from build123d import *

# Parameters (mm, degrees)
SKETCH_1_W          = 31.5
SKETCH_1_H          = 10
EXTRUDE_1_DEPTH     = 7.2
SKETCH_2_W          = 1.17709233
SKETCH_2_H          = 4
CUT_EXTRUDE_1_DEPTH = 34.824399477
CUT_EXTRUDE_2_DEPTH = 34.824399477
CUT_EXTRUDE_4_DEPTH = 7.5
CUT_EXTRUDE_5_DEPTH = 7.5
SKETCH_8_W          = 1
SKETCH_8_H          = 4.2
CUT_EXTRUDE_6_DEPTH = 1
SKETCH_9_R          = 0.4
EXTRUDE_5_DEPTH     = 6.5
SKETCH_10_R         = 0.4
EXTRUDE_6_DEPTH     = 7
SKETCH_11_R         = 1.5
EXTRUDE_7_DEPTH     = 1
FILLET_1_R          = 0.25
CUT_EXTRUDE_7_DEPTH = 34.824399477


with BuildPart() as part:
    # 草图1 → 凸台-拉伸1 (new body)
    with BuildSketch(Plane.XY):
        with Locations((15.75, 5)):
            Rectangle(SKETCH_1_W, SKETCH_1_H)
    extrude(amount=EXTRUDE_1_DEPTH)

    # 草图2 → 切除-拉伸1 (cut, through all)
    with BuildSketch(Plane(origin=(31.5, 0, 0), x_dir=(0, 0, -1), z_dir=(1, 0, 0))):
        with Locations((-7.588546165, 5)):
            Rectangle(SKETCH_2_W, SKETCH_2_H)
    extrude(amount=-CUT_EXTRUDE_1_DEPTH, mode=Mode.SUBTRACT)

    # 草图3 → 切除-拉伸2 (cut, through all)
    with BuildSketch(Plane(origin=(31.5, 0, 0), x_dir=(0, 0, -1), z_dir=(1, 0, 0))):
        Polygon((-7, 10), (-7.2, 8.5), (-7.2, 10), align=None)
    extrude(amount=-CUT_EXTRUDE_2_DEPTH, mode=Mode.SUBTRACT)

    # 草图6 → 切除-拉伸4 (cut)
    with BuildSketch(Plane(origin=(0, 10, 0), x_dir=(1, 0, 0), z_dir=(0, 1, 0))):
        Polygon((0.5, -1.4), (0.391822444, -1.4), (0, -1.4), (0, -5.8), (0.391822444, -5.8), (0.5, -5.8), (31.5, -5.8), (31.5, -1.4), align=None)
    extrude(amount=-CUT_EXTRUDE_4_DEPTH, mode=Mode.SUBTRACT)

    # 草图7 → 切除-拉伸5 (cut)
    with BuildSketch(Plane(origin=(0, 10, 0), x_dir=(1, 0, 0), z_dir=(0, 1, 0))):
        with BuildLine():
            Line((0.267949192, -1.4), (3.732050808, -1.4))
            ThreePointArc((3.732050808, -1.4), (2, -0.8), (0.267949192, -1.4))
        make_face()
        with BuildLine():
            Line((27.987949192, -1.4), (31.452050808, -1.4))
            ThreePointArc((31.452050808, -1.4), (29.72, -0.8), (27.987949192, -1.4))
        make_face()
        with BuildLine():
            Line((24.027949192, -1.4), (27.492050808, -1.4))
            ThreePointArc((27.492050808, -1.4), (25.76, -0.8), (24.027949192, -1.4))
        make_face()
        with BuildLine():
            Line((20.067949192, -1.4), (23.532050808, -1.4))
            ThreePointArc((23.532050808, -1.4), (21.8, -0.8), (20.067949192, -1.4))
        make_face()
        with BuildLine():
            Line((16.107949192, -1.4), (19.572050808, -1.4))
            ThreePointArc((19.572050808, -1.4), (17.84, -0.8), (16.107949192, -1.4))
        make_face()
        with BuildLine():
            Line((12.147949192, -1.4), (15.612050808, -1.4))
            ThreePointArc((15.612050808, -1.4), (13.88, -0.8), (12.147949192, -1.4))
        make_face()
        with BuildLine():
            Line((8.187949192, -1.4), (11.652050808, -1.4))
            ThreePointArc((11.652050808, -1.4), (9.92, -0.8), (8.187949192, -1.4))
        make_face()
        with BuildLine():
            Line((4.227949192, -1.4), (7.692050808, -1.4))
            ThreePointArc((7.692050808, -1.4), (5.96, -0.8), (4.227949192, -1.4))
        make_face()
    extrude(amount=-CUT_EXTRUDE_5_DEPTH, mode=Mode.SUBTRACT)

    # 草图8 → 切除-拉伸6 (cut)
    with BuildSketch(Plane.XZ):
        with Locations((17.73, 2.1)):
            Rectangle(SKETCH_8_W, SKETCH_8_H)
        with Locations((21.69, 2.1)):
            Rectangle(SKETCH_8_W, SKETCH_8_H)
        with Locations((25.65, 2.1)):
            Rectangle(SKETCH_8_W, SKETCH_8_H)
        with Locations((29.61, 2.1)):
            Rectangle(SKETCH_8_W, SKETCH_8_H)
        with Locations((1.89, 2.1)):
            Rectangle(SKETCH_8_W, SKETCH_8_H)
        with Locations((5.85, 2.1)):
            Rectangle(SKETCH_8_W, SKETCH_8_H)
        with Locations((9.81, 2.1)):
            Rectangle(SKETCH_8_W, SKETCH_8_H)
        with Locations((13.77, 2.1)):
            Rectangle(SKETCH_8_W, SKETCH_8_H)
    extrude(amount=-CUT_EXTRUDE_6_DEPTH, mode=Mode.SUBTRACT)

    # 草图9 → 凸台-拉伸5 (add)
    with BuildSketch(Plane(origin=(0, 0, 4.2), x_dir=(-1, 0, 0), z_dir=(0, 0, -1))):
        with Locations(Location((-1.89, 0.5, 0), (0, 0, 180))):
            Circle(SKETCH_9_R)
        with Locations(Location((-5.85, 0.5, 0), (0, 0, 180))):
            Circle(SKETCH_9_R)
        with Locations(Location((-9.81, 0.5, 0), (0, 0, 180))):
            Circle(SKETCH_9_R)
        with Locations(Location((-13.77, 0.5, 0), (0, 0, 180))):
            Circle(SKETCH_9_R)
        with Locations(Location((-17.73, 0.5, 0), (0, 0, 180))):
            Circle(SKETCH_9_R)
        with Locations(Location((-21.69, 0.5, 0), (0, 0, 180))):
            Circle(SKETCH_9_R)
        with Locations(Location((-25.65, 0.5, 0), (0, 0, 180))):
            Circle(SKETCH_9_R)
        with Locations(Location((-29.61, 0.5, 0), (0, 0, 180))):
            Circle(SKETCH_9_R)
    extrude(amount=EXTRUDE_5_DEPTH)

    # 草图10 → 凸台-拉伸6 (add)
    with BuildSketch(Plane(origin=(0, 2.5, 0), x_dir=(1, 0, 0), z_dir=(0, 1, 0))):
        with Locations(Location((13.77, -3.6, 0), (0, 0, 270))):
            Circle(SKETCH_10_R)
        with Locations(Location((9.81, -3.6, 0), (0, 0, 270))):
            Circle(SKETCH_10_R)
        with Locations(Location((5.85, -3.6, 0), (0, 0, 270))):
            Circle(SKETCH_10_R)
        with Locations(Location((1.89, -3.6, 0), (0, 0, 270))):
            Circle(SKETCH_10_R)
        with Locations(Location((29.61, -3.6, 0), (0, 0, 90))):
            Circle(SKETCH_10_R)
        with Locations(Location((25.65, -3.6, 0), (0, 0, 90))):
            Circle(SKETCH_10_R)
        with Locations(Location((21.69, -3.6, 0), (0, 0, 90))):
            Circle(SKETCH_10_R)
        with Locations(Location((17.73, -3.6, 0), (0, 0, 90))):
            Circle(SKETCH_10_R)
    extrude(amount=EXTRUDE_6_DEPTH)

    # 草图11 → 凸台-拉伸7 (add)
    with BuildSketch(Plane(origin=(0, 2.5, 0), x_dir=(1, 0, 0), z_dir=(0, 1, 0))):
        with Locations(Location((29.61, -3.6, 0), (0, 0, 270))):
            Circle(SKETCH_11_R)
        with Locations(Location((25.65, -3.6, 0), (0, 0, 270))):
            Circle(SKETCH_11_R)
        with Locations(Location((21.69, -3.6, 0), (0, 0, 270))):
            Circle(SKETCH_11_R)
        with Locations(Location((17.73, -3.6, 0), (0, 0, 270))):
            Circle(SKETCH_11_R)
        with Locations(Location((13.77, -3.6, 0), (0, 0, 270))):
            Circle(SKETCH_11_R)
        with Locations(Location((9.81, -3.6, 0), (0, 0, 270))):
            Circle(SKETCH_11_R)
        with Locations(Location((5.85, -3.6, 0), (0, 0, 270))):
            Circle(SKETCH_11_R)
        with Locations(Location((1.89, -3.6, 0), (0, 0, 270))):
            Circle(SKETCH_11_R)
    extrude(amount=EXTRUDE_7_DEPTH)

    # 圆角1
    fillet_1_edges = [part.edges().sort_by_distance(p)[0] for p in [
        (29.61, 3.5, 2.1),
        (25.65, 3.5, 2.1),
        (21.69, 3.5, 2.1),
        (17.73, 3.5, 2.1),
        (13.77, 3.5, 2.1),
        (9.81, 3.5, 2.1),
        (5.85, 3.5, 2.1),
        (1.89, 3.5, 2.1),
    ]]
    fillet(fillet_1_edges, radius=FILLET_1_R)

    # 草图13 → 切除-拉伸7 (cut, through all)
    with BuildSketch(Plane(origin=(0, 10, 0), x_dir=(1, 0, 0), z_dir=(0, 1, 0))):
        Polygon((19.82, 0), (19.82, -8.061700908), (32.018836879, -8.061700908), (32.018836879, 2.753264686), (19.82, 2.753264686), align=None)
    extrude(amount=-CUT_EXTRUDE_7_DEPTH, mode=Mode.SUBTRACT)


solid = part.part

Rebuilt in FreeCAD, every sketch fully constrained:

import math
import FreeCAD as App
import Part
import Sketcher

V = App.Vector
Q = App.Units.Quantity


def edges_at(feature, points):
    """Names of the edges that pass closest to the given points."""
    edges = feature.Shape.Edges
    near = lambda p: min(range(len(edges)), key=lambda i: edges[i].distToShape(Part.Vertex(*p))[0])
    return sorted({f"Edge{near(p) + 1}" for p in points})


def add_polygon(sketch, points):
    """Adds a closed chain of lines whose ends are joined by coincident constraints."""
    first, n = sketch.GeometryCount, len(points)
    for a, b in zip(points, points[1:] + points[:1]):
        sketch.addGeometry(Part.LineSegment(App.Vector(*a, 0), App.Vector(*b, 0)), False)
    for i in range(n):
        sketch.addConstraint(Sketcher.Constraint("Coincident", first + i, 2, first + (i + 1) % n, 1))

doc = App.newDocument("Part")
params = doc.addObject("Spreadsheet::Sheet", "Params")
for row, (alias, value) in enumerate([
    ("sketch1_height", "10 mm"),
    ("sketch1_width", "31.5 mm"),
    ("pad1_length", "7.2 mm"),
    ("sketch2_width", "4 mm"),
    ("sketch3_width", "1.5 mm"),
    ("sketch3_height", "0.2 mm"),
    ("sketch4_width", "31.5 mm"),
    ("sketch4_height", "4.4 mm"),
    ("pocket3_length", "7.5 mm"),
    ("sketch5_radius", "2.8 mm"),
    ("pocket4_length", "7.5 mm"),
    ("sketch6_width", "1 mm"),
    ("sketch6_height", "4.2 mm"),
    ("pocket5_length", "1 mm"),
    ("sketch7_diameter", "0.8 mm"),
    ("pad2_length", "6.5 mm"),
    ("sketch8_diameter", "0.8 mm"),
    ("pad3_length", "7 mm"),
    ("sketch9_diameter", "3 mm"),
    ("pad4_length", "1 mm"),
    ("fillet_radius", "0.25 mm"),
], start=1):
    params.set(f"A{row}", alias)
    params.set(f"B{row}", "=" + value)
    params.setAlias(f"B{row}", alias)

body = doc.addObject("PartDesign::Body", "Body")

sketch1 = doc.addObject("Sketcher::SketchObject", "Sketch")
body.addObject(sketch1)
sketch1.AttachmentSupport = (doc.XY_Plane, [""])
sketch1.MapMode = "FlatFace"
add_polygon(sketch1, [(0, 10), (0, 0), (32, 0), (32, 10)])
sketch1.addConstraint([
    Sketcher.Constraint("Vertical", 0),
    Sketcher.Constraint("Horizontal", 1),
    Sketcher.Constraint("Vertical", 2),
    Sketcher.Constraint("Horizontal", 3),
    Sketcher.Constraint("Coincident", 0, 2, -1, 1),
    Sketcher.Constraint("DistanceY", 0, 2, 0, 1, Q("10 mm")),
    Sketcher.Constraint("DistanceX", 1, 1, 1, 2, Q("31.5 mm")),
])
sketch1.setExpression("Constraints[9]", "Params.sketch1_height")
sketch1.setExpression("Constraints[10]", "Params.sketch1_width")
pad1 = doc.addObject("PartDesign::Pad", "Pad")
body.addObject(pad1)
pad1.Profile = sketch1
pad1.setExpression("Length", "Params.pad1_length")

sketch2 = doc.addObject("Sketcher::SketchObject", "Sketch001")
body.addObject(sketch2)
sketch2.AttachmentSupport = (doc.YZ_Plane, [""])
sketch2.MapMode = "FlatFace"
sketch2.AttachmentOffset = App.Placement(V(0, 0, 31.5), App.Rotation())
add_polygon(sketch2, [(7, 8.2), (3, 8.2), (3, 7), (7, 7)])
sketch2.addConstraint([
    Sketcher.Constraint("Horizontal", 0),
    Sketcher.Constraint("Vertical", 1),
    Sketcher.Constraint("Horizontal", 2),
    Sketcher.Constraint("Vertical", 3),
    Sketcher.Constraint("DistanceX", 0, 2, 0, 1, Q("4 mm")),
    Sketcher.Constraint("DistanceX", -1, 1, 0, 2, Q("3 mm")),
    Sketcher.Constraint("DistanceY", -1, 1, 1, 2, Q("7 mm")),
    Sketcher.Constraint("DistanceY", 1, 2, 1, 1, Q("1.177092 mm")),
])
sketch2.setExpression("Constraints[8]", "Params.sketch2_width")
pocket1 = doc.addObject("PartDesign::Pocket", "Pocket")
body.addObject(pocket1)
pocket1.Profile = sketch2
pocket1.Type = "ThroughAll"

sketch3 = doc.addObject("Sketcher::SketchObject", "Sketch002")
body.addObject(sketch3)
sketch3.AttachmentSupport = (doc.YZ_Plane, [""])
sketch3.MapMode = "FlatFace"
sketch3.AttachmentOffset = App.Placement(V(0, 0, 31.5), App.Rotation())
add_polygon(sketch3, [(8.5, 7.2), (10, 7), (10, 7.2)])
sketch3.addConstraint([
    Sketcher.Constraint("Vertical", 1),
    Sketcher.Constraint("Horizontal", 2),
    Sketcher.Constraint("DistanceX", 2, 2, 2, 1, Q("1.5 mm")),
    Sketcher.Constraint("DistanceY", 1, 1, 1, 2, Q("0.2 mm")),
    Sketcher.Constraint("DistanceX", -1, 1, 0, 2, Q("10 mm")),
    Sketcher.Constraint("DistanceY", -1, 1, 0, 2, Q("7 mm")),
])
sketch3.setExpression("Constraints[5]", "Params.sketch3_width")
sketch3.setExpression("Constraints[6]", "Params.sketch3_height")
pocket2 = doc.addObject("PartDesign::Pocket", "Pocket001")
body.addObject(pocket2)
pocket2.Profile = sketch3
pocket2.Type = "ThroughAll"

sketch4 = doc.addObject("Sketcher::SketchObject", "Sketch003")
body.addObject(sketch4)
sketch4.AttachmentSupport = (doc.XZ_Plane, [""])
sketch4.MapMode = "FlatFace"
sketch4.AttachmentOffset = App.Placement(V(0, 0, -10), App.Rotation())
add_polygon(sketch4, [(0, 1.4), (0, 5.8), (31.5, 5.8), (31.5, 1.4)])
sketch4.addConstraint([
    Sketcher.Constraint("Vertical", 0),
    Sketcher.Constraint("Horizontal", 1),
    Sketcher.Constraint("Vertical", 2),
    Sketcher.Constraint("Horizontal", 3),
    Sketcher.Constraint("PointOnObject", 0, 2, -2),
    Sketcher.Constraint("DistanceX", 1, 1, 1, 2, Q("31.5 mm")),
    Sketcher.Constraint("DistanceY", 0, 1, 0, 2, Q("4.4 mm")),
    Sketcher.Constraint("DistanceY", -1, 1, 0, 2, Q("5.8 mm")),
])
sketch4.setExpression("Constraints[9]", "Params.sketch4_width")
sketch4.setExpression("Constraints[10]", "Params.sketch4_height")
pocket3 = doc.addObject("PartDesign::Pocket", "Pocket002")
body.addObject(pocket3)
pocket3.Profile = sketch4
pocket3.setExpression("Length", "Params.pocket3_length")
pocket3.Reversed = True

sketch5 = doc.addObject("Sketcher::SketchObject", "Sketch004")
body.addObject(sketch5)
sketch5.AttachmentSupport = (doc.XZ_Plane, [""])
sketch5.MapMode = "FlatFace"
sketch5.AttachmentOffset = App.Placement(V(0, 0, -10), App.Rotation())
sketch5.addGeometry([
    Part.LineSegment(V(0.3, 1.4, 0), V(3.7, 1.4, 0)),
    Part.ArcOfCircle(Part.Circle(V(2, 3.6, 0), V(0, 0, 1), 2.8), math.radians(-128), math.radians(-52)),
    Part.LineSegment(V(28, 1.4, 0), V(31.5, 1.4, 0)),
    Part.ArcOfCircle(Part.Circle(V(29.7, 3.6, 0), V(0, 0, 1), 2.8), math.radians(-128), math.radians(-52)),
    Part.LineSegment(V(24, 1.4, 0), V(27.5, 1.4, 0)),
    Part.ArcOfCircle(Part.Circle(V(25.8, 3.6, 0), V(0, 0, 1), 2.8), math.radians(-128), math.radians(-52)),
    Part.LineSegment(V(20.1, 1.4, 0), V(23.5, 1.4, 0)),
    Part.ArcOfCircle(Part.Circle(V(21.8, 3.6, 0), V(0, 0, 1), 2.8), math.radians(-128), math.radians(-52)),
    Part.LineSegment(V(16.1, 1.4, 0), V(19.6, 1.4, 0)),
    Part.ArcOfCircle(Part.Circle(V(17.8, 3.6, 0), V(0, 0, 1), 2.8), math.radians(-128), math.radians(-52)),
    Part.LineSegment(V(12.1, 1.4, 0), V(15.6, 1.4, 0)),
    Part.ArcOfCircle(Part.Circle(V(13.9, 3.6, 0), V(0, 0, 1), 2.8), math.radians(-128), math.radians(-52)),
    Part.LineSegment(V(8.2, 1.4, 0), V(11.7, 1.4, 0)),
    Part.ArcOfCircle(Part.Circle(V(9.9, 3.6, 0), V(0, 0, 1), 2.8), math.radians(-128), math.radians(-52)),
    Part.LineSegment(V(4.2, 1.4, 0), V(7.7, 1.4, 0)),
    Part.ArcOfCircle(Part.Circle(V(6, 3.6, 0), V(0, 0, 1), 2.8), math.radians(-128), math.radians(-52)),
], False)
sketch5.addConstraint([
    Sketcher.Constraint("Coincident", 0, 1, 1, 1),
    Sketcher.Constraint("Coincident", 1, 2, 0, 2),
    Sketcher.Constraint("Coincident", 2, 1, 3, 1),
    Sketcher.Constraint("Coincident", 3, 2, 2, 2),
    Sketcher.Constraint("Coincident", 4, 1, 5, 1),
    Sketcher.Constraint("Coincident", 5, 2, 4, 2),
    Sketcher.Constraint("Coincident", 6, 1, 7, 1),
    Sketcher.Constraint("Coincident", 7, 2, 6, 2),
    Sketcher.Constraint("Coincident", 8, 1, 9, 1),
    Sketcher.Constraint("Coincident", 9, 2, 8, 2),
    Sketcher.Constraint("Coincident", 10, 1, 11, 1),
    Sketcher.Constraint("Coincident", 11, 2, 10, 2),
    Sketcher.Constraint("Coincident", 12, 1, 13, 1),
    Sketcher.Constraint("Coincident", 13, 2, 12, 2),
    Sketcher.Constraint("Coincident", 14, 1, 15, 1),
    Sketcher.Constraint("Coincident", 15, 2, 14, 2),
    Sketcher.Constraint("Horizontal", 0),
    Sketcher.Constraint("Horizontal", 2),
    Sketcher.Constraint("Horizontal", 4),
    Sketcher.Constraint("Horizontal", 6),
    Sketcher.Constraint("Horizontal", 8),
    Sketcher.Constraint("Horizontal", 10),
    Sketcher.Constraint("Horizontal", 12),
    Sketcher.Constraint("Horizontal", 14),
    Sketcher.Constraint("Equal", 1, 3),
    Sketcher.Constraint("Equal", 3, 5),
    Sketcher.Constraint("Equal", 5, 7),
    Sketcher.Constraint("Equal", 7, 9),
    Sketcher.Constraint("Equal", 9, 11),
    Sketcher.Constraint("Equal", 11, 13),
    Sketcher.Constraint("Equal", 13, 15),
    Sketcher.Constraint("Horizontal", 1, 3, 3, 3),
    Sketcher.Constraint("Horizontal", 3, 3, 5, 3),
    Sketcher.Constraint("Horizontal", 5, 3, 7, 3),
    Sketcher.Constraint("Horizontal", 7, 3, 9, 3),
    Sketcher.Constraint("Horizontal", 9, 3, 11, 3),
    Sketcher.Constraint("Horizontal", 11, 3, 13, 3),
    Sketcher.Constraint("Horizontal", 13, 3, 15, 3),
    Sketcher.Constraint("Horizontal", 1, 2, 2, 1),
    Sketcher.Constraint("Horizontal", 3, 2, 4, 1),
    Sketcher.Constraint("Horizontal", 5, 2, 6, 1),
    Sketcher.Constraint("Horizontal", 7, 2, 8, 1),
    Sketcher.Constraint("Horizontal", 9, 2, 10, 1),
    Sketcher.Constraint("Horizontal", 11, 2, 12, 1),
    Sketcher.Constraint("Horizontal", 13, 2, 14, 1),
    Sketcher.Constraint("Radius", 1, Q("2.8 mm")),
    Sketcher.Constraint("DistanceX", -1, 1, 1, 3, Q("2 mm")),
    Sketcher.Constraint("DistanceY", -1, 1, 1, 3, Q("3.6 mm")),
    Sketcher.Constraint("DistanceX", -1, 1, 7, 3, Q("21.8 mm")),
    Sketcher.Constraint("DistanceY", -1, 1, 0, 1, Q("1.4 mm")),
    Sketcher.Constraint("DistanceX", -1, 1, 3, 3, Q("29.72 mm")),
    Sketcher.Constraint("DistanceX", -1, 1, 5, 3, Q("25.76 mm")),
    Sketcher.Constraint("DistanceX", -1, 1, 9, 3, Q("17.84 mm")),
    Sketcher.Constraint("DistanceX", -1, 1, 11, 3, Q("13.88 mm")),
    Sketcher.Constraint("DistanceX", -1, 1, 13, 3, Q("9.92 mm")),
    Sketcher.Constraint("DistanceX", -1, 1, 15, 3, Q("5.96 mm")),
])
sketch5.setExpression("Constraints[45]", "Params.sketch5_radius")
pocket4 = doc.addObject("PartDesign::Pocket", "Pocket003")
body.addObject(pocket4)
pocket4.Profile = sketch5
pocket4.setExpression("Length", "Params.pocket4_length")
pocket4.Reversed = True

sketch6 = doc.addObject("Sketcher::SketchObject", "Sketch005")
body.addObject(sketch6)
sketch6.AttachmentSupport = (doc.XZ_Plane, [""])
sketch6.MapMode = "FlatFace"
add_polygon(sketch6, [(17.2, 4.2), (17.2, 0), (18.2, 0), (18.2, 4.2)])
add_polygon(sketch6, [(21.2, 4.2), (21.2, 0), (22.2, 0), (22.2, 4.2)])
add_polygon(sketch6, [(25.1, 4.2), (25.1, 0), (26.1, 0), (26.1, 4.2)])
add_polygon(sketch6, [(29.1, 4.2), (29.1, 0), (30.1, 0), (30.1, 4.2)])
add_polygon(sketch6, [(1.4, 4.2), (1.4, 0), (2.4, 0), (2.4, 4.2)])
add_polygon(sketch6, [(5.3, 4.2), (5.3, 0), (6.3, 0), (6.3, 4.2)])
add_polygon(sketch6, [(9.3, 4.2), (9.3, 0), (10.3, 0), (10.3, 4.2)])
add_polygon(sketch6, [(13.3, 4.2), (13.3, 0), (14.3, 0), (14.3, 4.2)])
sketch6.addConstraint([
    Sketcher.Constraint("Vertical", 0),
    Sketcher.Constraint("Horizontal", 1),
    Sketcher.Constraint("Vertical", 2),
    Sketcher.Constraint("Horizontal", 3),
    Sketcher.Constraint("Vertical", 4),
    Sketcher.Constraint("Horizontal", 5),
    Sketcher.Constraint("Vertical", 6),
    Sketcher.Constraint("Horizontal", 7),
    Sketcher.Constraint("Vertical", 8),
    Sketcher.Constraint("Horizontal", 9),
    Sketcher.Constraint("Vertical", 10),
    Sketcher.Constraint("Horizontal", 11),
    Sketcher.Constraint("Vertical", 12),
    Sketcher.Constraint("Horizontal", 13),
    Sketcher.Constraint("Vertical", 14),
    Sketcher.Constraint("Horizontal", 15),
    Sketcher.Constraint("Vertical", 16),
    Sketcher.Constraint("Horizontal", 17),
    Sketcher.Constraint("Vertical", 18),
    Sketcher.Constraint("Horizontal", 19),
    Sketcher.Constraint("Vertical", 20),
    Sketcher.Constraint("Horizontal", 21),
    Sketcher.Constraint("Vertical", 22),
    Sketcher.Constraint("Horizontal", 23),
    Sketcher.Constraint("Vertical", 24),
    Sketcher.Constraint("Horizontal", 25),
    Sketcher.Constraint("Vertical", 26),
    Sketcher.Constraint("Horizontal", 27),
    Sketcher.Constraint("Vertical", 28),
    Sketcher.Constraint("Horizontal", 29),
    Sketcher.Constraint("Vertical", 30),
    Sketcher.Constraint("Horizontal", 31),
    Sketcher.Constraint("PointOnObject", 0, 2, -1),
    Sketcher.Constraint("PointOnObject", 4, 2, -1),
    Sketcher.Constraint("PointOnObject", 8, 2, -1),
    Sketcher.Constraint("PointOnObject", 12, 2, -1),
    Sketcher.Constraint("PointOnObject", 16, 2, -1),
    Sketcher.Constraint("PointOnObject", 20, 2, -1),
    Sketcher.Constraint("PointOnObject", 24, 2, -1),
    Sketcher.Constraint("PointOnObject", 28, 2, -1),
    Sketcher.Constraint("Horizontal", 3, 2, 6, 2),
    Sketcher.Constraint("Horizontal", 7, 2, 10, 2),
    Sketcher.Constraint("Horizontal", 11, 2, 14, 2),
    Sketcher.Constraint("Horizontal", 15, 2, 18, 2),
    Sketcher.Constraint("Horizontal", 19, 2, 22, 2),
    Sketcher.Constraint("Horizontal", 23, 2, 26, 2),
    Sketcher.Constraint("Horizontal", 27, 2, 30, 2),
    Sketcher.Constraint("Equal", 3, 5),
    Sketcher.Constraint("Equal", 7, 9),
    Sketcher.Constraint("Equal", 11, 13),
    Sketcher.Constraint("Equal", 15, 17),
    Sketcher.Constraint("Equal", 19, 21),
    Sketcher.Constraint("Equal", 23, 25),
    Sketcher.Constraint("Equal", 27, 29),
    Sketcher.Constraint("DistanceX", 1, 1, 1, 2, Q("1 mm")),
    Sketcher.Constraint("DistanceY", 0, 2, 0, 1, Q("4.2 mm")),
    Sketcher.Constraint("DistanceX", 16, 2, 4, 2, Q("19.8 mm")),
    Sketcher.Constraint("DistanceX", -1, 1, 0, 2, Q("17.23 mm")),
    Sketcher.Constraint("DistanceX", -1, 1, 4, 2, Q("21.19 mm")),
    Sketcher.Constraint("DistanceX", -1, 1, 8, 2, Q("25.15 mm")),
    Sketcher.Constraint("DistanceX", -1, 1, 12, 2, Q("29.11 mm")),
    Sketcher.Constraint("DistanceX", -1, 1, 20, 2, Q("5.35 mm")),
    Sketcher.Constraint("DistanceX", -1, 1, 24, 2, Q("9.31 mm")),
    Sketcher.Constraint("DistanceX", -1, 1, 28, 2, Q("13.27 mm")),
])
sketch6.setExpression("Constraints[86]", "Params.sketch6_width")
sketch6.setExpression("Constraints[87]", "Params.sketch6_height")
pocket5 = doc.addObject("PartDesign::Pocket", "Pocket004")
body.addObject(pocket5)
pocket5.Profile = sketch6
pocket5.setExpression("Length", "Params.pocket5_length")

sketch7 = doc.addObject("Sketcher::SketchObject", "Sketch006")
body.addObject(sketch7)
sketch7.AttachmentSupport = (doc.XY_Plane, [""])
sketch7.MapMode = "FlatFace"
sketch7.AttachmentOffset = App.Placement(V(0, 0, 4.2), App.Rotation())
sketch7.addGeometry([
    Part.Circle(V(1.89, 0.5, 0), V(0, 0, 1), 0.4),
    Part.Circle(V(5.85, 0.5, 0), V(0, 0, 1), 0.4),
    Part.Circle(V(9.81, 0.5, 0), V(0, 0, 1), 0.4),
    Part.Circle(V(13.77, 0.5, 0), V(0, 0, 1), 0.4),
    Part.Circle(V(17.73, 0.5, 0), V(0, 0, 1), 0.4),
    Part.Circle(V(21.69, 0.5, 0), V(0, 0, 1), 0.4),
    Part.Circle(V(25.65, 0.5, 0), V(0, 0, 1), 0.4),
    Part.Circle(V(29.61, 0.5, 0), V(0, 0, 1), 0.4),
], False)
sketch7.addConstraint([
    Sketcher.Constraint("Equal", 0, 1),
    Sketcher.Constraint("Equal", 1, 2),
    Sketcher.Constraint("Equal", 2, 3),
    Sketcher.Constraint("Equal", 3, 4),
    Sketcher.Constraint("Equal", 4, 5),
    Sketcher.Constraint("Equal", 5, 6),
    Sketcher.Constraint("Equal", 6, 7),
    Sketcher.Constraint("Horizontal", 0, 3, 1, 3),
    Sketcher.Constraint("Horizontal", 1, 3, 2, 3),
    Sketcher.Constraint("Horizontal", 2, 3, 3, 3),
    Sketcher.Constraint("Horizontal", 3, 3, 4, 3),
    Sketcher.Constraint("Horizontal", 4, 3, 5, 3),
    Sketcher.Constraint("Horizontal", 5, 3, 6, 3),
    Sketcher.Constraint("Horizontal", 6, 3, 7, 3),
    Sketcher.Constraint("Diameter", 0, Q("0.8 mm")),
    Sketcher.Constraint("DistanceY", -1, 1, 0, 3, Q("0.5 mm")),
    Sketcher.Constraint("DistanceX", 0, 3, 5, 3, Q("19.8 mm")),
    Sketcher.Constraint("DistanceX", 1, 3, 6, 3, Q("19.8 mm")),
    Sketcher.Constraint("DistanceX", 2, 3, 7, 3, Q("19.8 mm")),
    Sketcher.Constraint("DistanceX", -1, 1, 0, 3, Q("1.89 mm")),
    Sketcher.Constraint("DistanceX", -1, 1, 1, 3, Q("5.85 mm")),
    Sketcher.Constraint("DistanceX", -1, 1, 2, 3, Q("9.81 mm")),
    Sketcher.Constraint("DistanceX", -1, 1, 3, 3, Q("13.77 mm")),
    Sketcher.Constraint("DistanceX", -1, 1, 4, 3, Q("17.73 mm")),
])
sketch7.setExpression("Constraints[14]", "Params.sketch7_diameter")
pad2 = doc.addObject("PartDesign::Pad", "Pad001")
body.addObject(pad2)
pad2.Profile = sketch7
pad2.setExpression("Length", "Params.pad2_length")
pad2.Reversed = True

sketch8 = doc.addObject("Sketcher::SketchObject", "Sketch007")
body.addObject(sketch8)
sketch8.AttachmentSupport = (doc.XZ_Plane, [""])
sketch8.MapMode = "FlatFace"
sketch8.AttachmentOffset = App.Placement(V(0, 0, -2.5), App.Rotation())
sketch8.addGeometry([
    Part.Circle(V(13.77, 3.6, 0), V(0, 0, 1), 0.4),
    Part.Circle(V(9.81, 3.6, 0), V(0, 0, 1), 0.4),
    Part.Circle(V(5.85, 3.6, 0), V(0, 0, 1), 0.4),
    Part.Circle(V(1.89, 3.6, 0), V(0, 0, 1), 0.4),
    Part.Circle(V(29.61, 3.6, 0), V(0, 0, 1), 0.4),
    Part.Circle(V(25.65, 3.6, 0), V(0, 0, 1), 0.4),
    Part.Circle(V(21.69, 3.6, 0), V(0, 0, 1), 0.4),
    Part.Circle(V(17.73, 3.6, 0), V(0, 0, 1), 0.4),
], False)
sketch8.addConstraint([
    Sketcher.Constraint("Equal", 0, 1),
    Sketcher.Constraint("Equal", 1, 2),
    Sketcher.Constraint("Equal", 2, 3),
    Sketcher.Constraint("Equal", 3, 4),
    Sketcher.Constraint("Equal", 4, 5),
    Sketcher.Constraint("Equal", 5, 6),
    Sketcher.Constraint("Equal", 6, 7),
    Sketcher.Constraint("Horizontal", 0, 3, 1, 3),
    Sketcher.Constraint("Horizontal", 1, 3, 2, 3),
    Sketcher.Constraint("Horizontal", 2, 3, 3, 3),
    Sketcher.Constraint("Horizontal", 3, 3, 4, 3),
    Sketcher.Constraint("Horizontal", 4, 3, 5, 3),
    Sketcher.Constraint("Horizontal", 5, 3, 6, 3),
    Sketcher.Constraint("Horizontal", 6, 3, 7, 3),
    Sketcher.Constraint("Diameter", 0, Q("0.8 mm")),
    Sketcher.Constraint("DistanceY", -1, 1, 0, 3, Q("3.6 mm")),
    Sketcher.Constraint("DistanceX", 1, 3, 4, 3, Q("19.8 mm")),
    Sketcher.Constraint("DistanceX", 2, 3, 5, 3, Q("19.8 mm")),
    Sketcher.Constraint("DistanceX", -1, 1, 0, 3, Q("13.77 mm")),
    Sketcher.Constraint("DistanceX", -1, 1, 1, 3, Q("9.81 mm")),
    Sketcher.Constraint("DistanceX", -1, 1, 2, 3, Q("5.85 mm")),
    Sketcher.Constraint("DistanceX", -1, 1, 3, 3, Q("1.89 mm")),
    Sketcher.Constraint("DistanceX", -1, 1, 6, 3, Q("21.69 mm")),
    Sketcher.Constraint("DistanceX", -1, 1, 7, 3, Q("17.73 mm")),
])
sketch8.setExpression("Constraints[14]", "Params.sketch8_diameter")
pad3 = doc.addObject("PartDesign::Pad", "Pad002")
body.addObject(pad3)
pad3.Profile = sketch8
pad3.setExpression("Length", "Params.pad3_length")
pad3.Reversed = True

sketch9 = doc.addObject("Sketcher::SketchObject", "Sketch008")
body.addObject(sketch9)
sketch9.AttachmentSupport = (doc.XZ_Plane, [""])
sketch9.MapMode = "FlatFace"
sketch9.AttachmentOffset = App.Placement(V(0, 0, -2.5), App.Rotation())
sketch9.addGeometry([
    Part.Circle(V(29.6, 3.6, 0), V(0, 0, 1), 1.5),
    Part.Circle(V(25.6, 3.6, 0), V(0, 0, 1), 1.5),
    Part.Circle(V(21.7, 3.6, 0), V(0, 0, 1), 1.5),
    Part.Circle(V(17.7, 3.6, 0), V(0, 0, 1), 1.5),
    Part.Circle(V(13.8, 3.6, 0), V(0, 0, 1), 1.5),
    Part.Circle(V(9.8, 3.6, 0), V(0, 0, 1), 1.5),
    Part.Circle(V(5.8, 3.6, 0), V(0, 0, 1), 1.5),
    Part.Circle(V(1.9, 3.6, 0), V(0, 0, 1), 1.5),
], False)
sketch9.addConstraint([
    Sketcher.Constraint("Equal", 0, 1),
    Sketcher.Constraint("Equal", 1, 2),
    Sketcher.Constraint("Equal", 2, 3),
    Sketcher.Constraint("Equal", 3, 4),
    Sketcher.Constraint("Equal", 4, 5),
    Sketcher.Constraint("Equal", 5, 6),
    Sketcher.Constraint("Equal", 6, 7),
    Sketcher.Constraint("Horizontal", 0, 3, 1, 3),
    Sketcher.Constraint("Horizontal", 1, 3, 2, 3),
    Sketcher.Constraint("Horizontal", 2, 3, 3, 3),
    Sketcher.Constraint("Horizontal", 3, 3, 4, 3),
    Sketcher.Constraint("Horizontal", 4, 3, 5, 3),
    Sketcher.Constraint("Horizontal", 5, 3, 6, 3),
    Sketcher.Constraint("Horizontal", 6, 3, 7, 3),
    Sketcher.Constraint("Diameter", 0, Q("3 mm")),
    Sketcher.Constraint("DistanceY", -1, 1, 0, 3, Q("3.6 mm")),
    Sketcher.Constraint("DistanceX", 5, 3, 0, 3, Q("19.8 mm")),
    Sketcher.Constraint("DistanceX", 6, 3, 1, 3, Q("19.8 mm")),
    Sketcher.Constraint("DistanceX", 7, 3, 2, 3, Q("19.8 mm")),
    Sketcher.Constraint("DistanceX", -1, 1, 0, 3, Q("29.61 mm")),
    Sketcher.Constraint("DistanceX", -1, 1, 1, 3, Q("25.65 mm")),
    Sketcher.Constraint("DistanceX", -1, 1, 2, 3, Q("21.69 mm")),
    Sketcher.Constraint("DistanceX", -1, 1, 3, 3, Q("17.73 mm")),
    Sketcher.Constraint("DistanceX", -1, 1, 4, 3, Q("13.77 mm")),
])
sketch9.setExpression("Constraints[14]", "Params.sketch9_diameter")
pad4 = doc.addObject("PartDesign::Pad", "Pad003")
body.addObject(pad4)
pad4.Profile = sketch9
pad4.setExpression("Length", "Params.pad4_length")
pad4.Reversed = True
doc.recompute()

fillet = doc.addObject("PartDesign::Fillet", "Fillet")
body.addObject(fillet)
fillet.Base = (pad4, edges_at(pad4, [
    (29.61, 3.5, 2.1),
    (25.65, 3.5, 2.1),
    (21.69, 3.5, 2.1),
    (17.73, 3.5, 2.1),
    (13.77, 3.5, 2.1),
    (9.81, 3.5, 2.1),
    (5.85, 3.5, 2.1),
    (1.89, 3.5, 2.1),
]))
fillet.setExpression("Radius", "Params.fillet_radius")

sketch10 = doc.addObject("Sketcher::SketchObject", "Sketch009")
body.addObject(sketch10)
sketch10.AttachmentSupport = (doc.XZ_Plane, [""])
sketch10.MapMode = "FlatFace"
sketch10.AttachmentOffset = App.Placement(V(0, 0, -10), App.Rotation())
add_polygon(sketch10, [(20, 8), (32, 8), (32, -3), (20, -3)])
sketch10.addConstraint([
    Sketcher.Constraint("Horizontal", 0),
    Sketcher.Constraint("Vertical", 1),
    Sketcher.Constraint("Horizontal", 2),
    Sketcher.Constraint("Vertical", 3),
    Sketcher.Constraint("DistanceX", -1, 1, 2, 2, Q("19.82 mm")),
    Sketcher.Constraint("DistanceY", -1, 1, 0, 2, Q("8.061701 mm")),
    Sketcher.Constraint("DistanceX", 0, 1, 0, 2, Q("12.198837 mm")),
    Sketcher.Constraint("DistanceY", 1, 2, 1, 1, Q("10.814966 mm")),
])
pocket6 = doc.addObject("PartDesign::Pocket", "Pocket005")
body.addObject(pocket6)
pocket6.Profile = sketch10
pocket6.Type = "ThroughAll"
pocket6.Reversed = True

doc.recompute()
